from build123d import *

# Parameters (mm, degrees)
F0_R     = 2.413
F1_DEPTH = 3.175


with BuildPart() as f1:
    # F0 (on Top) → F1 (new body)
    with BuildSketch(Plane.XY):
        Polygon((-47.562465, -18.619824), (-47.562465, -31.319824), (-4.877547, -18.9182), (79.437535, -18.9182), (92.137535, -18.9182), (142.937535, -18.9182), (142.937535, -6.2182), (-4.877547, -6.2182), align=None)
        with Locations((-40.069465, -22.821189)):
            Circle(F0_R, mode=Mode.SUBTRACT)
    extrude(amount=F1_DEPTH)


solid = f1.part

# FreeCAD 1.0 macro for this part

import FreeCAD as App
import Part
import Sketcher
from FreeCAD import Vector
Q = App.Units.Quantity

doc = App.newDocument("Part")
body = doc.addObject("PartDesign::Body", "Body")

# Sketch on XY plane
sketch1 = body.newObject("Sketcher::SketchObject", "Sketch")
sketch1.AttachmentSupport = (doc.getObject("XY_Plane"), [""])
sketch1.MapMode = "FlatFace"
sketch1.addGeometry([
    Part.LineSegment(Vector(-47.6, -18.6, 0), Vector(-47.6, -31.3, 0)),  # 0
    Part.LineSegment(Vector(-47.6, -31.3, 0), Vector(-4.9, -18.9, 0)),  # 1
    Part.LineSegment(Vector(-4.9, -18.9, 0), Vector(142.9, -18.9, 0)),  # 2
    Part.LineSegment(Vector(142.9, -18.9, 0), Vector(142.9, -6.2, 0)),  # 3
    Part.LineSegment(Vector(142.9, -6.2, 0), Vector(-4.9, -6.2, 0)),  # 4
    Part.LineSegment(Vector(-4.9, -6.2, 0), Vector(-47.6, -18.6, 0)),  # 5
    Part.Circle(Vector(-40.1, -22.8, 0), Vector(0, 0, 1), 2.4),  # 6
], False)
sketch1.addConstraint([
    Sketcher.Constraint("Coincident", 0, 2, 1, 1),
    Sketcher.Constraint("Coincident", 1, 2, 2, 1),
    Sketcher.Constraint("Coincident", 2, 2, 3, 1),
    Sketcher.Constraint("Coincident", 3, 2, 4, 1),
    Sketcher.Constraint("Coincident", 4, 2, 5, 1),
    Sketcher.Constraint("Coincident", 5, 2, 0, 1),
    Sketcher.Constraint("Vertical", 0),
    Sketcher.Constraint("Horizontal", 2),
    Sketcher.Constraint("Vertical", 3),
    Sketcher.Constraint("Horizontal", 4),
    Sketcher.Constraint("Parallel", 1, 5),
    Sketcher.Constraint("Vertical", 1, 2, 4, 2),
    Sketcher.Constraint("Diameter", 6, Q("0.19 in")),
    Sketcher.Constraint("DistanceY", 0, 2, 0, 1, Q("0.5 in")),
    Sketcher.Constraint("DistanceX", 0, 2, 2, 2, Q("7.5 in")),
    Sketcher.Constraint("Distance", 1, Q("1.75 in")),
    Sketcher.Constraint("DistanceX", 0, 2, 6, 3, Q("0.295 in")),
    Sketcher.Constraint("DistanceX", 2, 1, 2, 2, Q("147.815082 mm")),
    Sketcher.Constraint("DistanceY", 1, 2, -1, 1, Q("18.9182 mm")),
    Sketcher.Constraint("DistanceY", 6, 3, -1, 1, Q("22.821189 mm")),
    Sketcher.Constraint("DistanceX", 6, 3, -1, 1, Q("40.069465 mm")),
])
pad1 = body.newObject("PartDesign::Pad", "Pad")
pad1.Profile = sketch1
pad1.Length = Q("0.125 in")

doc.recompute()
